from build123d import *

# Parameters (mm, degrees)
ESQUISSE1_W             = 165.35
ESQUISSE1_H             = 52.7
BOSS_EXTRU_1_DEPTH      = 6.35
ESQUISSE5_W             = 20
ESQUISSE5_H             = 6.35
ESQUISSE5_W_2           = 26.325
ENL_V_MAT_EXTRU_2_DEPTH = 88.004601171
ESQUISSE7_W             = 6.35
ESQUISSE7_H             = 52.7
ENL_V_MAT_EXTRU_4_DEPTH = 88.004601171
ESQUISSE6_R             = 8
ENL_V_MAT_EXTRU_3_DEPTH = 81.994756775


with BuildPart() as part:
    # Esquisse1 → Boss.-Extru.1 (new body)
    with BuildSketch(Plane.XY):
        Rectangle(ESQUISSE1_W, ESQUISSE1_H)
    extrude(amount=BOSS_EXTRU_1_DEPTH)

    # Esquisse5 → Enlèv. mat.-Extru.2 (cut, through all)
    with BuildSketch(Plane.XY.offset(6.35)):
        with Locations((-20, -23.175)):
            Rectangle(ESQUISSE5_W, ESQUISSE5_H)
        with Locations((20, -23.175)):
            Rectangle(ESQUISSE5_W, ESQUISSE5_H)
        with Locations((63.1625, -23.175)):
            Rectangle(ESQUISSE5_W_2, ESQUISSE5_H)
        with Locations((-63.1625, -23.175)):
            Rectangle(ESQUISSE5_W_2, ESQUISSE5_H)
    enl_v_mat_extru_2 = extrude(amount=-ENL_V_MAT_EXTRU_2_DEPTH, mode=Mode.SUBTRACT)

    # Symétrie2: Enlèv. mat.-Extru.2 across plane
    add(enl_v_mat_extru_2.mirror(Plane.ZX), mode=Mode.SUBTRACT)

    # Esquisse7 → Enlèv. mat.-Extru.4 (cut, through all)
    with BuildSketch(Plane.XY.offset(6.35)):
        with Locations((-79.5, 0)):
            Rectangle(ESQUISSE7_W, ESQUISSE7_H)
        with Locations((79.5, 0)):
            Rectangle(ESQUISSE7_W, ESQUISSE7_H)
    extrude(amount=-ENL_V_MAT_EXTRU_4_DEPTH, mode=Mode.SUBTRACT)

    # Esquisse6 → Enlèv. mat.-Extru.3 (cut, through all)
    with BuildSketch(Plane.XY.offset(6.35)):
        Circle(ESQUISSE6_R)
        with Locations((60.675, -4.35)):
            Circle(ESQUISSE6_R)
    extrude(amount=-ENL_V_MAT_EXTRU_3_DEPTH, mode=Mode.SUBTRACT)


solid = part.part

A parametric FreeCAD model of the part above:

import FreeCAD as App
import Part
import Sketcher

V = App.Vector
Q = App.Units.Quantity

doc = App.newDocument("Part")
body = doc.addObject("PartDesign::Body", "Body")

# Sketch on XY plane
sketch1 = body.newObject("Sketcher::SketchObject", "Sketch")
sketch1.AttachmentSupport = (doc.getObject("XY_Plane"), [""])
sketch1.MapMode = "FlatFace"
sketch1.addGeometry([
    Part.LineSegment(V(-83, 26, 0), V(-83, -26, 0)),
    Part.LineSegment(V(-83, -26, 0), V(83, -26, 0)),
    Part.LineSegment(V(83, -26, 0), V(83, 26, 0)),
    Part.LineSegment(V(83, 26, 0), V(-83, 26, 0)),
], False)
sketch1.addConstraint([
    Sketcher.Constraint("Coincident", 0, 2, 1, 1),
    Sketcher.Constraint("Coincident", 1, 2, 2, 1),
    Sketcher.Constraint("Coincident", 2, 2, 3, 1),
    Sketcher.Constraint("Coincident", 3, 2, 0, 1),
    Sketcher.Constraint("Vertical", 0),
    Sketcher.Constraint("Horizontal", 1),
    Sketcher.Constraint("Vertical", 2),
    Sketcher.Constraint("Horizontal", 3),
    Sketcher.Constraint("Symmetric", 0, 2, 2, 2, -1, 1),
    Sketcher.Constraint("DistanceY", 0, 2, 0, 1, Q("52.7 mm")),
    Sketcher.Constraint("DistanceX", 1, 1, 1, 2, Q("165.35 mm")),
])
pad1 = body.newObject("PartDesign::Pad", "Pad")
pad1.Profile = sketch1
pad1.Length = 6.35

# Sketch on XY plane
sketch2 = body.newObject("Sketcher::SketchObject", "Sketch001")
sketch2.AttachmentSupport = (doc.getObject("XY_Plane"), [""])
sketch2.MapMode = "FlatFace"
sketch2.AttachmentOffset = App.Placement(V(0, 0, 6.35), App.Rotation())
sketch2.addGeometry([
    Part.LineSegment(V(-30, -20, 0), V(-30, -26, 0)),  # 0
    Part.LineSegment(V(-30, -26, 0), V(-10, -26, 0)),  # 1
    Part.LineSegment(V(-10, -26, 0), V(-10, -20, 0)),  # 2
    Part.LineSegment(V(-10, -20, 0), V(-30, -20, 0)),  # 3
    Part.LineSegment(V(10, -20, 0), V(10, -26, 0)),  # 4
    Part.LineSegment(V(10, -26, 0), V(30, -26, 0)),  # 5
    Part.LineSegment(V(30, -26, 0), V(30, -20, 0)),  # 6
    Part.LineSegment(V(30, -20, 0), V(10, -20, 0)),  # 7
    Part.LineSegment(V(50, -20, 0), V(50, -26, 0)),  # 8
    Part.LineSegment(V(50, -26, 0), V(76, -26, 0)),  # 9
    Part.LineSegment(V(76, -26, 0), V(76, -20, 0)),  # 10
    Part.LineSegment(V(76, -20, 0), V(50, -20, 0)),  # 11
    Part.LineSegment(V(-76, -20, 0), V(-76, -26, 0)),  # 12
    Part.LineSegment(V(-76, -26, 0), V(-50, -26, 0)),  # 13
    Part.LineSegment(V(-50, -26, 0), V(-50, -20, 0)),  # 14
    Part.LineSegment(V(-50, -20, 0), V(-76, -20, 0)),  # 15
], False)
sketch2.addConstraint([
    Sketcher.Constraint("Coincident", 0, 2, 1, 1),
    Sketcher.Constraint("Coincident", 1, 2, 2, 1),
    Sketcher.Constraint("Coincident", 2, 2, 3, 1),
    Sketcher.Constraint("Coincident", 3, 2, 0, 1),
    Sketcher.Constraint("Coincident", 4, 2, 5, 1),
    Sketcher.Constraint("Coincident", 5, 2, 6, 1),
    Sketcher.Constraint("Coincident", 6, 2, 7, 1),
    Sketcher.Constraint("Coincident", 7, 2, 4, 1),
    Sketcher.Constraint("Coincident", 8, 2, 9, 1),
    Sketcher.Constraint("Coincident", 9, 2, 10, 1),
    Sketcher.Constraint("Coincident", 10, 2, 11, 1),
    Sketcher.Constraint("Coincident", 11, 2, 8, 1),
    Sketcher.Constraint("Coincident", 12, 2, 13, 1),
    Sketcher.Constraint("Coincident", 13, 2, 14, 1),
    Sketcher.Constraint("Coincident", 14, 2, 15, 1),
    Sketcher.Constraint("Coincident", 15, 2, 12, 1),
    Sketcher.Constraint("Vertical", 0),
    Sketcher.Constraint("Horizontal", 1),
    Sketcher.Constraint("Vertical", 2),
    Sketcher.Constraint("Horizontal", 3),
    Sketcher.Constraint("Vertical", 4),
    Sketcher.Constraint("Horizontal", 5),
    Sketcher.Constraint("Vertical", 6),
    Sketcher.Constraint("Horizontal", 7),
    Sketcher.Constraint("Vertical", 8),
    Sketcher.Constraint("Horizontal", 9),
    Sketcher.Constraint("Vertical", 10),
    Sketcher.Constraint("Horizontal", 11),
    Sketcher.Constraint("Vertical", 12),
    Sketcher.Constraint("Horizontal", 13),
    Sketcher.Constraint("Vertical", 14),
    Sketcher.Constraint("Horizontal", 15),
    Sketcher.Constraint("Symmetric", 1, 2, 4, 2, -2),
    Sketcher.Constraint("Symmetric", 3, 2, 6, 2, -2),
    Sketcher.Constraint("Symmetric", 9, 2, 12, 2, -2),
    Sketcher.Constraint("Symmetric", 11, 2, 14, 2, -2),
    Sketcher.Constraint("Horizontal", 5, 2, 8, 2),
    Sketcher.Constraint("Horizontal", 7, 2, 10, 2),
    Sketcher.Constraint("DistanceX", 1, 1, 1, 2, Q("20 mm")),
    Sketcher.Constraint("DistanceX", 0, 2, -1, 1, Q("30 mm")),
    Sketcher.Constraint("DistanceY", 2, 2, -1, 1, Q("20 mm")),
    Sketcher.Constraint("DistanceX", -1, 1, 8, 2, Q("50 mm")),
    Sketcher.Constraint("DistanceY", 0, 2, 0, 1, Q("6.35 mm")),
    Sketcher.Constraint("DistanceX", 9, 1, 9, 2, Q("26.325 mm")),
])
pocket1 = body.newObject("PartDesign::Pocket", "Pocket")
pocket1.Profile = sketch2
pocket1.Type = "ThroughAll"
doc.recompute()

mirrored = body.newObject("PartDesign::Mirrored", "Mirrored")
mirrored.Originals = [pocket1]
mirrored.MirrorPlane = (doc.getObject("XZ_Plane"), [""])
body.Tip = mirrored

# Sketch on XY plane
sketch3 = body.newObject("Sketcher::SketchObject", "Sketch002")
sketch3.AttachmentSupport = (doc.getObject("XY_Plane"), [""])
sketch3.MapMode = "FlatFace"
sketch3.AttachmentOffset = App.Placement(V(0, 0, 6.35), App.Rotation())
sketch3.addGeometry([
    Part.LineSegment(V(-83, 26, 0), V(-83, -26, 0)),  # 0
    Part.LineSegment(V(-83, -26, 0), V(-76, -26, 0)),  # 1
    Part.LineSegment(V(-76, -26, 0), V(-76, 26, 0)),  # 2
    Part.LineSegment(V(-76, 26, 0), V(-83, 26, 0)),  # 3
    Part.LineSegment(V(76, 26, 0), V(76, -26, 0)),  # 4
    Part.LineSegment(V(76, -26, 0), V(83, -26, 0)),  # 5
    Part.LineSegment(V(83, -26, 0), V(83, 26, 0)),  # 6
    Part.LineSegment(V(83, 26, 0), V(76, 26, 0)),  # 7
], False)
sketch3.addConstraint([
    Sketcher.Constraint("Coincident", 0, 2, 1, 1),
    Sketcher.Constraint("Coincident", 1, 2, 2, 1),
    Sketcher.Constraint("Coincident", 2, 2, 3, 1),
    Sketcher.Constraint("Coincident", 3, 2, 0, 1),
    Sketcher.Constraint("Coincident", 4, 2, 5, 1),
    Sketcher.Constraint("Coincident", 5, 2, 6, 1),
    Sketcher.Constraint("Coincident", 6, 2, 7, 1),
    Sketcher.Constraint("Coincident", 7, 2, 4, 1),
    Sketcher.Constraint("Vertical", 0),
    Sketcher.Constraint("Horizontal", 1),
    Sketcher.Constraint("Vertical", 2),
    Sketcher.Constraint("Horizontal", 3),
    Sketcher.Constraint("Vertical", 4),
    Sketcher.Constraint("Horizontal", 5),
    Sketcher.Constraint("Vertical", 6),
    Sketcher.Constraint("Horizontal", 7),
    Sketcher.Constraint("Symmetric", 2, 2, 4, 2, -1, 1),
    Sketcher.Constraint("Symmetric", 0, 2, 6, 2, -1, 1),
    Sketcher.Constraint("Horizontal", 1, 2, 4, 2),
    Sketcher.Constraint("DistanceY", 0, 2, 0, 1, Q("52.7 mm")),
    Sketcher.Constraint("DistanceX", 0, 2, 4, 2, Q("159 mm")),
    Sketcher.Constraint("DistanceX", 1, 1, 1, 2, Q("6.35 mm")),
])
pocket2 = body.newObject("PartDesign::Pocket", "Pocket001")
pocket2.Profile = sketch3
pocket2.Type = "ThroughAll"

# Sketch on XY plane
sketch4 = body.newObject("Sketcher::SketchObject", "Sketch003")
sketch4.AttachmentSupport = (doc.getObject("XY_Plane"), [""])
sketch4.MapMode = "FlatFace"
sketch4.AttachmentOffset = App.Placement(V(0, 0, 6.35), App.Rotation())
sketch4.addGeometry([
    Part.Circle(V(0, 0, 0), V(0, 0, 1), 8),
    Part.Circle(V(61, -4, 0), V(0, 0, 1), 8),
], False)
sketch4.addConstraint([
    Sketcher.Constraint("Coincident", 0, 3, -1, 1),
    Sketcher.Constraint("Equal", 0, 1),
    Sketcher.Constraint("Diameter", 0, Q("16 mm")),
    Sketcher.Constraint("DistanceY", 1, 3, -1, 1, Q("4.35 mm")),
    Sketcher.Constraint("DistanceX", -1, 1, 1, 3, Q("60.675 mm")),
])
pocket3 = body.newObject("PartDesign::Pocket", "Pocket002")
pocket3.Profile = sketch4
pocket3.Type = "ThroughAll"

doc.recompute()
